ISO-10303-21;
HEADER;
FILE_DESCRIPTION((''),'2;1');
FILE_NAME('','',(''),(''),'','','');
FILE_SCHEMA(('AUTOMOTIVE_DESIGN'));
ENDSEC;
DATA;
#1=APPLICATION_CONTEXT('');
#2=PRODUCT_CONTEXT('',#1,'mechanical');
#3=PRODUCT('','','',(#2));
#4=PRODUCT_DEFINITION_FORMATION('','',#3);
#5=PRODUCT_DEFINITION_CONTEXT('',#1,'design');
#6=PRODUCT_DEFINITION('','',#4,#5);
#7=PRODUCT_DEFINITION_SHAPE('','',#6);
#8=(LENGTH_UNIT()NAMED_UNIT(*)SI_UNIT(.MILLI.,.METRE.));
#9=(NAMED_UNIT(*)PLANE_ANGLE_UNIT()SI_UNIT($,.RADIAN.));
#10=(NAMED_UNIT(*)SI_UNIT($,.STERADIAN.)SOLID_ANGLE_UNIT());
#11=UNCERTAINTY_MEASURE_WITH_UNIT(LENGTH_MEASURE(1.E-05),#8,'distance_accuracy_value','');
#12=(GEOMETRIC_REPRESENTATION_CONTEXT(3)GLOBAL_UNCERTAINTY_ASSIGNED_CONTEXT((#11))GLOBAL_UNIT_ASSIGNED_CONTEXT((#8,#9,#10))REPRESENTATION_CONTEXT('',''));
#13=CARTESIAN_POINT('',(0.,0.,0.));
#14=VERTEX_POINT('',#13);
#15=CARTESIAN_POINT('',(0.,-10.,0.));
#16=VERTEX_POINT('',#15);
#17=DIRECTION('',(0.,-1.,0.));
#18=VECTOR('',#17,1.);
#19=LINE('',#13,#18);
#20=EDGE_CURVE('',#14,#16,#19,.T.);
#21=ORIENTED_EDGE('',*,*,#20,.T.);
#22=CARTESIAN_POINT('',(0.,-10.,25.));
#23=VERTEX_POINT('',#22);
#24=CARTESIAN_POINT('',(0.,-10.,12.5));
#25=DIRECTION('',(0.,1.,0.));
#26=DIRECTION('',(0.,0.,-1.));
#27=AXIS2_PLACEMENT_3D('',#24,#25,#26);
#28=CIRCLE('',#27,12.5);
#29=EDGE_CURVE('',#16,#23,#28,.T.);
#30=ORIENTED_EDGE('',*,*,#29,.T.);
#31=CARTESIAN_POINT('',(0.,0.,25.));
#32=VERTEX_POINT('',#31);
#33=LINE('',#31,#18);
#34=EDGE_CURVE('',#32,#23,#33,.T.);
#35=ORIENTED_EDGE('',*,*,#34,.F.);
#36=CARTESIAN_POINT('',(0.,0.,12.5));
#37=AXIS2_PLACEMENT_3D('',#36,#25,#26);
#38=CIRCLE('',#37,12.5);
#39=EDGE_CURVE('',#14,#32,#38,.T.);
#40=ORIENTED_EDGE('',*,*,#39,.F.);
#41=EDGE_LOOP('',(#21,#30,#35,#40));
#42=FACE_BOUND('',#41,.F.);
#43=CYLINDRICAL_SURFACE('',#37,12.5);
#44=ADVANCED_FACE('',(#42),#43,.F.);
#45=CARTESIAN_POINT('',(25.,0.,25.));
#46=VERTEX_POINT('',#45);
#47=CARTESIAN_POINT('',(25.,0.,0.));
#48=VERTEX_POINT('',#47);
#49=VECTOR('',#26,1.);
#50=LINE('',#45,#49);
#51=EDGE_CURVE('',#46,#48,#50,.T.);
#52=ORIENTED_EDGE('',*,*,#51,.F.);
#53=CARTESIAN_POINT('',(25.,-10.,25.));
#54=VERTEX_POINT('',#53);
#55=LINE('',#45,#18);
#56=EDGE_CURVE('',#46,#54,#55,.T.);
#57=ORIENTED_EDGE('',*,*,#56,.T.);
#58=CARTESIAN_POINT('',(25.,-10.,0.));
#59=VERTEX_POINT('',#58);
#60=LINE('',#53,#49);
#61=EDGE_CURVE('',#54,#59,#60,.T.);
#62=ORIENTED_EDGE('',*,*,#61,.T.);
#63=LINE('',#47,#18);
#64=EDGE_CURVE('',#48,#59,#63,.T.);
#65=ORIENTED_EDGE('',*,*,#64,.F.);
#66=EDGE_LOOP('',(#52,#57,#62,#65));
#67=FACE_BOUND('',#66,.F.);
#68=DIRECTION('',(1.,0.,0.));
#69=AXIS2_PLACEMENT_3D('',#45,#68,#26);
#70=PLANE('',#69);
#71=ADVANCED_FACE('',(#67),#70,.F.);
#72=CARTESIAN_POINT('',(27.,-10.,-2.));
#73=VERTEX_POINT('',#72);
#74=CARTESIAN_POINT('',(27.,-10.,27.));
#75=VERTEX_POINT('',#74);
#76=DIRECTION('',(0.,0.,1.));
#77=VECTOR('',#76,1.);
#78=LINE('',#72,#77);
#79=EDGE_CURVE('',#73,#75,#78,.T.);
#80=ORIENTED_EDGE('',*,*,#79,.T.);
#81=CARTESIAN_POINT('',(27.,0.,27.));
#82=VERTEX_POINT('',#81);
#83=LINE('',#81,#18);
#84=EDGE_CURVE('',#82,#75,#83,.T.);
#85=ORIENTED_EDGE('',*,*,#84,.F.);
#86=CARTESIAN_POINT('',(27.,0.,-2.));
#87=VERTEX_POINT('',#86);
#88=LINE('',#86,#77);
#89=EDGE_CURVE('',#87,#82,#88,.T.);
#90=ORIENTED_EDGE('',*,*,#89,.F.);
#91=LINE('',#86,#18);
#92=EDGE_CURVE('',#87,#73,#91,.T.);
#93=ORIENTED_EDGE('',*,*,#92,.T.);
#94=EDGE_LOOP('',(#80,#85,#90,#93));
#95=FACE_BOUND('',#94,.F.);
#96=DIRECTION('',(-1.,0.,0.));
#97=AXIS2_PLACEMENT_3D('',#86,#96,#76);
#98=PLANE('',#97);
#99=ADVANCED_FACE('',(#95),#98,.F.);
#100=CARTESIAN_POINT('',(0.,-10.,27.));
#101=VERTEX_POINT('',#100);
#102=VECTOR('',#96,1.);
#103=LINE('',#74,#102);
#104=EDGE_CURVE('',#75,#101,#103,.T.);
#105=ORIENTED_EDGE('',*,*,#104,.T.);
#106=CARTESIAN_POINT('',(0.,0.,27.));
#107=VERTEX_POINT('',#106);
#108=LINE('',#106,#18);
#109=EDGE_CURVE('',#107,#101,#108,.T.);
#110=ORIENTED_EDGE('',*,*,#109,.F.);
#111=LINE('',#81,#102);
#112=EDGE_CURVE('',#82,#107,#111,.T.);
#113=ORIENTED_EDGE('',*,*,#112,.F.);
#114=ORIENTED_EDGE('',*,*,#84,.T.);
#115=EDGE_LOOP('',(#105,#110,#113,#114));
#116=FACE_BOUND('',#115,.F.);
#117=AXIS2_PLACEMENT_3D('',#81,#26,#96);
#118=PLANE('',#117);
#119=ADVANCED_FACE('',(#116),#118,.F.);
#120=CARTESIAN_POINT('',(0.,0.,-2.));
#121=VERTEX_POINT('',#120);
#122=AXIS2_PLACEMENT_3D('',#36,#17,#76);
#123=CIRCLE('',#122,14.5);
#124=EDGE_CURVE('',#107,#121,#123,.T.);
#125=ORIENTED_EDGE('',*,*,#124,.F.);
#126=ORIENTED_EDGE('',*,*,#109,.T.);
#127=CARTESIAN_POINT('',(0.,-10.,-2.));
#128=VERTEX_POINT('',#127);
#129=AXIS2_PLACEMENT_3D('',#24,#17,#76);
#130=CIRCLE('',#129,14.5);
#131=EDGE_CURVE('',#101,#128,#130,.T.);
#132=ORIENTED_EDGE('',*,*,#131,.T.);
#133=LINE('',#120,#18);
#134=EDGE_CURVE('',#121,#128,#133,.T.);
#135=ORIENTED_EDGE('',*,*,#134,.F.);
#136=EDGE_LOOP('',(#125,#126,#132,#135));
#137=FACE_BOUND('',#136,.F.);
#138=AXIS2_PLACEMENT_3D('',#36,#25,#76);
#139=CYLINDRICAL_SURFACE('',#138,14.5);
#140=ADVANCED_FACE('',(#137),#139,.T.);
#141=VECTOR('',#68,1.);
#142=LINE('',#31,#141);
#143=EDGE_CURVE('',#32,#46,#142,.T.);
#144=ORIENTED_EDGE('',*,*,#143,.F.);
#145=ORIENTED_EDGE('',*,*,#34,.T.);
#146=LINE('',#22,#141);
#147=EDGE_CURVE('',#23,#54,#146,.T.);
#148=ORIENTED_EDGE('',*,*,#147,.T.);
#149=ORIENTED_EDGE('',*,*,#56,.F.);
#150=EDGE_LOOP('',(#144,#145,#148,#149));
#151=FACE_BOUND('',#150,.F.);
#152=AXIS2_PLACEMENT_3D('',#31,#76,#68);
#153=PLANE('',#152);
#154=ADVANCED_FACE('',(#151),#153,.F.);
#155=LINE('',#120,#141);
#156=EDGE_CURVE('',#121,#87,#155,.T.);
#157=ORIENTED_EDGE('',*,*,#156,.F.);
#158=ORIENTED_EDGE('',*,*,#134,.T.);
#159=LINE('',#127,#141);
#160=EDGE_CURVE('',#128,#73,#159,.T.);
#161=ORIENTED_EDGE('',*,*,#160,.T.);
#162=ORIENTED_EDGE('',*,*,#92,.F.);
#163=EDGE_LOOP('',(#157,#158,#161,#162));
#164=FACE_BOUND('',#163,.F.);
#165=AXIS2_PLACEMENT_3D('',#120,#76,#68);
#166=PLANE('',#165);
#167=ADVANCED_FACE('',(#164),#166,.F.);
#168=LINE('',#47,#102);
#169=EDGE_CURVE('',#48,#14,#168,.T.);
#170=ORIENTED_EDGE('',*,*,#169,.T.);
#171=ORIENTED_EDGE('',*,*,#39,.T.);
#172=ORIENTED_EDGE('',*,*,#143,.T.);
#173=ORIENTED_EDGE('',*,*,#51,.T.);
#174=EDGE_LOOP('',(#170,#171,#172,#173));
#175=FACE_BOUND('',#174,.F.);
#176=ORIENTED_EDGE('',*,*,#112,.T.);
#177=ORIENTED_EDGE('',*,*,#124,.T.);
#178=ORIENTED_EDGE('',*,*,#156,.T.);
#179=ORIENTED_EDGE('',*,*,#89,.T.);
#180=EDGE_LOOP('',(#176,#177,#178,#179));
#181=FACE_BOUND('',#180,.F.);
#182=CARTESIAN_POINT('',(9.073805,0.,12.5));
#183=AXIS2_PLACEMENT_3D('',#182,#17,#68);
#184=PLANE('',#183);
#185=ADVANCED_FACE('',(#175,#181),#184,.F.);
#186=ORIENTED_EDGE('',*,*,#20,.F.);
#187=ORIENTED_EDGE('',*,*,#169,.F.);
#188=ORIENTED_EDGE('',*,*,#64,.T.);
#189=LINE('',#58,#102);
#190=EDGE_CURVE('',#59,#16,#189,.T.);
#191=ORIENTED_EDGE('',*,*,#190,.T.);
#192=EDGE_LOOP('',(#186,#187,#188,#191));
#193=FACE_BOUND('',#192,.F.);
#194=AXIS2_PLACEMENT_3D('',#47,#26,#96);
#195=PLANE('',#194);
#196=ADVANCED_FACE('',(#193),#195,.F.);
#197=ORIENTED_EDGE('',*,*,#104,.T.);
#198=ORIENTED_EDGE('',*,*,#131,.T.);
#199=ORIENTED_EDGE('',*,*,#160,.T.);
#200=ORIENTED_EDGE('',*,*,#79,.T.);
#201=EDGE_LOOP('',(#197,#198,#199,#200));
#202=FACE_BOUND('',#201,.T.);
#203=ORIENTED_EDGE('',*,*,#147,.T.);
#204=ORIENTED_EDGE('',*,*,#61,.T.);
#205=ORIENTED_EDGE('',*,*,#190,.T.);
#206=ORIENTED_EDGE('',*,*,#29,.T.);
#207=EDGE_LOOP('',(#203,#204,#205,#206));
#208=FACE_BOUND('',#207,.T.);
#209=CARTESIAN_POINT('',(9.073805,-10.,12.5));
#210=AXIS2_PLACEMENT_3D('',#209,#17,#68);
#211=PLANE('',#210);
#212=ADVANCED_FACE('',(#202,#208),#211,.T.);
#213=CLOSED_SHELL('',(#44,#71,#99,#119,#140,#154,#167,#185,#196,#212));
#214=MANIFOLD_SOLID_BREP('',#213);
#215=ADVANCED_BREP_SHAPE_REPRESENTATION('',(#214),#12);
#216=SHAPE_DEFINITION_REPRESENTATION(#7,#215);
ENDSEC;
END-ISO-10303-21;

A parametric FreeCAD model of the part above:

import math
import FreeCAD as App
import Part
import Sketcher

V = App.Vector

doc = App.newDocument("Part")
body = doc.addObject("PartDesign::Body", "Body")

sketch1 = doc.addObject("Sketcher::SketchObject", "Sketch")
body.addObject(sketch1)
sketch1.AttachmentSupport = (doc.XZ_Plane, [""])
sketch1.MapMode = "FlatFace"
sketch1.addGeometry([
    Part.LineSegment(V(27, 27, 0), V(0, 27, 0)),
    Part.ArcOfCircle(Part.Circle(V(0, 12.5, 0), V(0, 0, 1), 14.5), math.radians(90), math.radians(270)),
    Part.LineSegment(V(0, -2, 0), V(27, -2, 0)),
    Part.LineSegment(V(27, -2, 0), V(27, 27, 0)),
    Part.LineSegment(V(25, 25, 0), V(25, 0, 0)),
    Part.LineSegment(V(25, 0, 0), V(0, 0, 0)),
    Part.ArcOfCircle(Part.Circle(V(0, 12.5, 0), V(0, 0, 1), 12.5), math.radians(90), math.radians(270)),
    Part.LineSegment(V(0, 25, 0), V(25, 25, 0)),
], False)
sketch1.addConstraint([
    Sketcher.Constraint("Tangent", 0, 2, 1, 1),
    Sketcher.Constraint("Tangent", 1, 2, 2, 1),
    Sketcher.Constraint("Coincident", 2, 2, 3, 1),
    Sketcher.Constraint("Coincident", 3, 2, 0, 1),
    Sketcher.Constraint("Coincident", 4, 2, 5, 1),
    Sketcher.Constraint("Tangent", 5, 2, 6, 2),
    Sketcher.Constraint("Tangent", 6, 1, 7, 1),
    Sketcher.Constraint("Coincident", 7, 2, 4, 1),
    Sketcher.Constraint("Horizontal", 0),
    Sketcher.Constraint("Horizontal", 2),
    Sketcher.Constraint("Vertical", 3),
    Sketcher.Constraint("Vertical", 4),
    Sketcher.Constraint("Horizontal", 5),
    Sketcher.Constraint("Horizontal", 7),
    Sketcher.Constraint("Coincident", 5, 2, -1, 1),
    Sketcher.Constraint("Coincident", 6, 3, 1, 3),
    Sketcher.Constraint("Equal", 7, 4),
    Sketcher.Constraint("Radius", 1, 14.5),
    Sketcher.Constraint("Radius", 6, 12.5),
    Sketcher.Constraint("DistanceX", 0, 2, 0, 1, 27.0),
])
pad1 = doc.addObject("PartDesign::Pad", "Pad")
body.addObject(pad1)
pad1.Profile = sketch1
pad1.Length = 10

doc.recompute()
